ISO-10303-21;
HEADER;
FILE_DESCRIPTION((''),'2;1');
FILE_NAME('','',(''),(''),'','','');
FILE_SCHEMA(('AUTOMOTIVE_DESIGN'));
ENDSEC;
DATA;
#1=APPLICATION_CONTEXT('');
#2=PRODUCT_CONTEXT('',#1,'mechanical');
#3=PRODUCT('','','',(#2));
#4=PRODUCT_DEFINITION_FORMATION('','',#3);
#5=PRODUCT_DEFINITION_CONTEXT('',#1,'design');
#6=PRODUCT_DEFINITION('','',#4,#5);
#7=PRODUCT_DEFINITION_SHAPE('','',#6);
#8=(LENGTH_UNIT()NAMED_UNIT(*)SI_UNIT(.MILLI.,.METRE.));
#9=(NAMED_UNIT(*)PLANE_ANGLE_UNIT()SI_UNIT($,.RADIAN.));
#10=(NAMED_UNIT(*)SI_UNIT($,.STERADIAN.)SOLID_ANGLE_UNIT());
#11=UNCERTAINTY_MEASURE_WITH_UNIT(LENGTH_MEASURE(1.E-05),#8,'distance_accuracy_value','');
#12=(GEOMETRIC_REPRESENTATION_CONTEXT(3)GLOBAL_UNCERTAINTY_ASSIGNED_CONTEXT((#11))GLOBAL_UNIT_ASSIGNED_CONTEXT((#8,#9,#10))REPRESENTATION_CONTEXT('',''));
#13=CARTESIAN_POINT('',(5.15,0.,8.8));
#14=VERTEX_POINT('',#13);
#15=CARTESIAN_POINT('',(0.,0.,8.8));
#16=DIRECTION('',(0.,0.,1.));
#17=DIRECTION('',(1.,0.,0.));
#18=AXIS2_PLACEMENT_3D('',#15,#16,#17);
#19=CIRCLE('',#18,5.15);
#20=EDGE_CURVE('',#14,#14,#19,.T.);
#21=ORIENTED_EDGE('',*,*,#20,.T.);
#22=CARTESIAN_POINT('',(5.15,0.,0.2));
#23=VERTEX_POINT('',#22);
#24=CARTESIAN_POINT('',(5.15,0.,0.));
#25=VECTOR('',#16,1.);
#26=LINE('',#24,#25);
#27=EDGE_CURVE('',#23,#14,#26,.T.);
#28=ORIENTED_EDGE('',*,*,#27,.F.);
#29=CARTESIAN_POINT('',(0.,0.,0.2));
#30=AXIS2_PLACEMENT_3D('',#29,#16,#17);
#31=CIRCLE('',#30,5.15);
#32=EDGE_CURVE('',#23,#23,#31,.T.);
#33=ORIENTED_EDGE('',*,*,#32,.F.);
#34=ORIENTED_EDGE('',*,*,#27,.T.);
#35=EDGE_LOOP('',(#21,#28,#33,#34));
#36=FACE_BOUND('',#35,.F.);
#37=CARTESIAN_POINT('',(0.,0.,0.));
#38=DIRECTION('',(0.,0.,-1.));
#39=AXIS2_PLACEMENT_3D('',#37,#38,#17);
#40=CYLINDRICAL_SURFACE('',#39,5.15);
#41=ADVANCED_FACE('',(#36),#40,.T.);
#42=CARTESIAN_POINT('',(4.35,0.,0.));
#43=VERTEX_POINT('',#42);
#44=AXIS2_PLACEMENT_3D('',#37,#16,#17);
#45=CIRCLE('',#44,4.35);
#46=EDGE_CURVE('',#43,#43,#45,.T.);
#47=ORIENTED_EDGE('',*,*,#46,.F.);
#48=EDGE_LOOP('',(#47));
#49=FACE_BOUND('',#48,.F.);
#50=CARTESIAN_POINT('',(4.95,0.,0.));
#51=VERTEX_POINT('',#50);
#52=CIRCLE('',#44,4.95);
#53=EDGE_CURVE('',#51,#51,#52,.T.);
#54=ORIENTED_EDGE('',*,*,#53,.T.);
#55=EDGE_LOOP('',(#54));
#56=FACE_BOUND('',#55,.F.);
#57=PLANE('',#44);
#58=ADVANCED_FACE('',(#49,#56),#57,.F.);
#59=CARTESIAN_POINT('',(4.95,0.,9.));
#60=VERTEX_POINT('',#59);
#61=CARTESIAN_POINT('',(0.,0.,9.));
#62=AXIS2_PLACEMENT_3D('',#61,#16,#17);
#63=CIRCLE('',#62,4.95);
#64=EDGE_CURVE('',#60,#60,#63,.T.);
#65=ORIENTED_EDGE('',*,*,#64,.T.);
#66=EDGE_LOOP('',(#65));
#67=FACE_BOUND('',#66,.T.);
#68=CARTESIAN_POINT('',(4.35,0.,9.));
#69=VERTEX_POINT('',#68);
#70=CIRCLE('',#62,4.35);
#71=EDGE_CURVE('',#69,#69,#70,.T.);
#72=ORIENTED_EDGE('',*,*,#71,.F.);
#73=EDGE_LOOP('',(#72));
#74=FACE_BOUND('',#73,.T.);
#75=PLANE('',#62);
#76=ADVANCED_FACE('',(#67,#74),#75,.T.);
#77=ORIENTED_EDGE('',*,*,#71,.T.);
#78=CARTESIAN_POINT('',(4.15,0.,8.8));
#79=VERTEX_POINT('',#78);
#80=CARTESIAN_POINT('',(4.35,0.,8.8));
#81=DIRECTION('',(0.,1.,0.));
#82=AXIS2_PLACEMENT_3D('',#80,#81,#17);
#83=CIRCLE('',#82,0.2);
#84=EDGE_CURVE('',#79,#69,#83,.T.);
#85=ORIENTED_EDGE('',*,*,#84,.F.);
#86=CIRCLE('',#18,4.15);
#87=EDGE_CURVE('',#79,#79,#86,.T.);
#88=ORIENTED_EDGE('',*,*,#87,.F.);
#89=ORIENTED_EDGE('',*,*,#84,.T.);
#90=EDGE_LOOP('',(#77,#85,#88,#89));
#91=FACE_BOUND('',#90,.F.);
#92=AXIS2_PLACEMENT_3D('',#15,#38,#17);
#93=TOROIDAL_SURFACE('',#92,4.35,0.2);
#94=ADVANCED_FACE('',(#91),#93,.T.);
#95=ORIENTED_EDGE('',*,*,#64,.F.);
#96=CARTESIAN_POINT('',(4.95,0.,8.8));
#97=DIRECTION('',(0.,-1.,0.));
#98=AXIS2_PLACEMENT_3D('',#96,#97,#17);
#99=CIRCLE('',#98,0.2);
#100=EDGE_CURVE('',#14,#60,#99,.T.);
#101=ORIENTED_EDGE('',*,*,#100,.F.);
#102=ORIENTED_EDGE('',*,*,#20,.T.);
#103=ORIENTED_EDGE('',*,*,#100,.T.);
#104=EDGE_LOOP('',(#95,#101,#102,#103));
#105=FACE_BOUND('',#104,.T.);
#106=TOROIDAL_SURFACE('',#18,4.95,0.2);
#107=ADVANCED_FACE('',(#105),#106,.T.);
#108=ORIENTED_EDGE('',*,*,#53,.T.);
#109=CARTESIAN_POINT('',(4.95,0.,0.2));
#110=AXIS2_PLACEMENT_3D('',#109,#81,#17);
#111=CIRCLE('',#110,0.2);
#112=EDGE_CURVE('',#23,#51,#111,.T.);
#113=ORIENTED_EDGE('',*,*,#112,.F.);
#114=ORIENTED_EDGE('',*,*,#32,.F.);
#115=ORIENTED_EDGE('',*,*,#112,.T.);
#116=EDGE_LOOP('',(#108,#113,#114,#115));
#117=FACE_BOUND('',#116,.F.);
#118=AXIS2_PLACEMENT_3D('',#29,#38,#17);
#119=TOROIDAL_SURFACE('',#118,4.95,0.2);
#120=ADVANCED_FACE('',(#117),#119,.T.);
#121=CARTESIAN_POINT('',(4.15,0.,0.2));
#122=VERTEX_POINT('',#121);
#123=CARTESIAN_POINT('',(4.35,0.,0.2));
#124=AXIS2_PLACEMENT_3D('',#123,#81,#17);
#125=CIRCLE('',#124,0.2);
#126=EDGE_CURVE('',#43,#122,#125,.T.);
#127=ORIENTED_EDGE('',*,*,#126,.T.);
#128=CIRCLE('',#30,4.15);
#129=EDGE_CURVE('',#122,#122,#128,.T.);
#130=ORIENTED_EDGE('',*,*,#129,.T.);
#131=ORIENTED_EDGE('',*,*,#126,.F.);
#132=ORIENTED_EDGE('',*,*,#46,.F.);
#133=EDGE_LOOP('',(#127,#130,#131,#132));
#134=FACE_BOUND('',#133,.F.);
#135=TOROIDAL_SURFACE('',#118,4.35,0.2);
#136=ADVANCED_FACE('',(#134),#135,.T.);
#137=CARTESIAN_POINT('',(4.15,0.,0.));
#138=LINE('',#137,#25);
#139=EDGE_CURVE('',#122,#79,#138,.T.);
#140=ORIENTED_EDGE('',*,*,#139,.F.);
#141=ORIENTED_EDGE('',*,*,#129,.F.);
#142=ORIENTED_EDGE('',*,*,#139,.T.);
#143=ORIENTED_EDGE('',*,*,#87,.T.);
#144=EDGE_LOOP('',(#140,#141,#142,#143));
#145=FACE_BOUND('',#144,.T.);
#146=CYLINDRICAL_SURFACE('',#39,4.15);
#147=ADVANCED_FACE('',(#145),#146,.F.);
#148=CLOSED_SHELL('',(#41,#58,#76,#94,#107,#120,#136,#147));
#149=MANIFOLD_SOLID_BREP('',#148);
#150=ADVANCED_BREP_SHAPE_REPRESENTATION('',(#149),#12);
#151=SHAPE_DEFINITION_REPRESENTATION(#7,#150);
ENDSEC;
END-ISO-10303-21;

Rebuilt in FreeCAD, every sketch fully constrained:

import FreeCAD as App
import Part
import Sketcher

V = App.Vector
Q = App.Units.Quantity


def edges_at(feature, points):
    """Names of the edges that pass closest to the given points."""
    edges = feature.Shape.Edges
    near = lambda p: min(range(len(edges)), key=lambda i: edges[i].distToShape(Part.Vertex(*p))[0])
    return sorted({f"Edge{near(p) + 1}" for p in points})

doc = App.newDocument("Part")
body = doc.addObject("PartDesign::Body", "Body")

sketch1 = body.newObject("Sketcher::SketchObject", "Sketch")
sketch1.AttachmentSupport = (doc.getObject("XY_Plane"), [""])
sketch1.MapMode = "FlatFace"
sketch1.addGeometry(Part.Circle(V(0, 0, 0), V(0, 0, 1), 5.2), False)
sketch1.addGeometry(Part.Circle(V(0, 0, 0), V(0, 0, 1), 4.2), False)
sketch1.addConstraint(Sketcher.Constraint("Coincident", 0, 3, -1, 1))
sketch1.addConstraint(Sketcher.Constraint("Coincident", 1, 3, -1, 1))
sketch1.addConstraint(Sketcher.Constraint("Diameter", 0, Q("10.3 mm")))
sketch1.addConstraint(Sketcher.Constraint("Diameter", 1, Q("8.3 mm")))
pad1 = body.newObject("PartDesign::Pad", "Pad")
pad1.Profile = sketch1
pad1.Length = 9
doc.recompute()

fillet = body.newObject("PartDesign::Fillet", "Fillet")
fillet.Base = (pad1, edges_at(pad1, [(-5.15, 0, 9), (-4.15, 0, 9)]))
fillet.Radius = 0.2
doc.recompute()

fillet2 = body.newObject("PartDesign::Fillet", "Fillet001")
fillet2.Base = (fillet, edges_at(fillet, [(-5.15, 0, 0), (-4.15, 0, 0)]))
fillet2.Radius = 0.2

doc.recompute()
